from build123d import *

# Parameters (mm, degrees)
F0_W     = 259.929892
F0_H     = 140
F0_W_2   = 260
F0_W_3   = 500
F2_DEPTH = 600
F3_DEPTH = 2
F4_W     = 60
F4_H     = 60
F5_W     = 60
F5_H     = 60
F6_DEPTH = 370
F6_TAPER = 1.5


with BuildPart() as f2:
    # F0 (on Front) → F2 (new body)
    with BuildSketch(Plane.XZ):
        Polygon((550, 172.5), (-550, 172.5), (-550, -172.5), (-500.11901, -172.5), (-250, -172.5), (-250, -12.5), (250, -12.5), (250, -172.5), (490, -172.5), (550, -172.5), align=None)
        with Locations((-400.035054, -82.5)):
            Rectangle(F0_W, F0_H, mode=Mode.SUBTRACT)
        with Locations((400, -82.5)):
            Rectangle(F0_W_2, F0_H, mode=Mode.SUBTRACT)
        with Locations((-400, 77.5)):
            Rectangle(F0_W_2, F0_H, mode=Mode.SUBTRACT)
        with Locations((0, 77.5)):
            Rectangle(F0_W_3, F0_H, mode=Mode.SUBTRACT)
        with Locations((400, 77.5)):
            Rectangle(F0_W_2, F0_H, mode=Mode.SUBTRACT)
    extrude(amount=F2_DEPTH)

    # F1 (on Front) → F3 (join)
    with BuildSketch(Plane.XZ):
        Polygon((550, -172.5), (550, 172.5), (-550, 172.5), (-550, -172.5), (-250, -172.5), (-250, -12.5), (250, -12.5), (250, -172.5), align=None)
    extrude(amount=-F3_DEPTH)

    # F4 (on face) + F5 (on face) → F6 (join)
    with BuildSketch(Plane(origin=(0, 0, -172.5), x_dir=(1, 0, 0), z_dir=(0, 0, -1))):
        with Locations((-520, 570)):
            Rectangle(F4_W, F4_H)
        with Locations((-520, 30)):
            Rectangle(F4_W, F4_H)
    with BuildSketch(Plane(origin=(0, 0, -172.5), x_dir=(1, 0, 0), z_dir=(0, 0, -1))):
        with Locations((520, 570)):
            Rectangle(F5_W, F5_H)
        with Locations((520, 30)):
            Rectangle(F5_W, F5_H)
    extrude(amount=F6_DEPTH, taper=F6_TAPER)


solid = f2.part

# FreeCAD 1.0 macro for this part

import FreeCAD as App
import Part
import Sketcher
from FreeCAD import Vector

doc = App.newDocument("Part")
body = doc.addObject("PartDesign::Body", "Body")

sketch1 = doc.addObject("Sketcher::SketchObject", "Sketch")
body.addObject(sketch1)
sketch1.AttachmentSupport = (doc.XZ_Plane, [""])
sketch1.MapMode = "FlatFace"
sketch1.addGeometry(Part.LineSegment(Vector(550, 172, 0), Vector(-550, 172, 0)), False)
sketch1.addGeometry(Part.LineSegment(Vector(-550, 172, 0), Vector(-550, -172, 0)), False)
sketch1.addGeometry(Part.LineSegment(Vector(-550, -172, 0), Vector(-250, -172, 0)), False)
sketch1.addGeometry(Part.LineSegment(Vector(-250, -172, 0), Vector(-250, -12, 0)), False)
sketch1.addGeometry(Part.LineSegment(Vector(-250, -12, 0), Vector(250, -12, 0)), False)
sketch1.addGeometry(Part.LineSegment(Vector(250, -12, 0), Vector(250, -172, 0)), False)
sketch1.addGeometry(Part.LineSegment(Vector(250, -172, 0), Vector(550, -172, 0)), False)
sketch1.addGeometry(Part.LineSegment(Vector(550, -172, 0), Vector(550, 172, 0)), False)
sketch1.addGeometry(Part.LineSegment(Vector(-270, -152, 0), Vector(-530, -152, 0)), False)
sketch1.addGeometry(Part.LineSegment(Vector(-530, -152, 0), Vector(-530, -12, 0)), False)
sketch1.addGeometry(Part.LineSegment(Vector(-530, -12, 0), Vector(-270, -12, 0)), False)
sketch1.addGeometry(Part.LineSegment(Vector(-270, -12, 0), Vector(-270, -152, 0)), False)
sketch1.addGeometry(Part.LineSegment(Vector(530, -152, 0), Vector(270, -152, 0)), False)
sketch1.addGeometry(Part.LineSegment(Vector(270, -152, 0), Vector(270, -12, 0)), False)
sketch1.addGeometry(Part.LineSegment(Vector(270, -12, 0), Vector(530, -12, 0)), False)
sketch1.addGeometry(Part.LineSegment(Vector(530, -12, 0), Vector(530, -152, 0)), False)
sketch1.addGeometry(Part.LineSegment(Vector(-270, 8, 0), Vector(-530, 8, 0)), False)
sketch1.addGeometry(Part.LineSegment(Vector(-530, 8, 0), Vector(-530, 148, 0)), False)
sketch1.addGeometry(Part.LineSegment(Vector(-530, 148, 0), Vector(-270, 148, 0)), False)
sketch1.addGeometry(Part.LineSegment(Vector(-270, 148, 0), Vector(-270, 8, 0)), False)
sketch1.addGeometry(Part.LineSegment(Vector(250, 8, 0), Vector(-250, 8, 0)), False)
sketch1.addGeometry(Part.LineSegment(Vector(-250, 8, 0), Vector(-250, 148, 0)), False)
sketch1.addGeometry(Part.LineSegment(Vector(-250, 148, 0), Vector(250, 148, 0)), False)
sketch1.addGeometry(Part.LineSegment(Vector(250, 148, 0), Vector(250, 8, 0)), False)
sketch1.addGeometry(Part.LineSegment(Vector(530, 8, 0), Vector(270, 8, 0)), False)
sketch1.addGeometry(Part.LineSegment(Vector(270, 8, 0), Vector(270, 148, 0)), False)
sketch1.addGeometry(Part.LineSegment(Vector(270, 148, 0), Vector(530, 148, 0)), False)
sketch1.addGeometry(Part.LineSegment(Vector(530, 148, 0), Vector(530, 8, 0)), False)
sketch1.addConstraint(Sketcher.Constraint("Coincident", 0, 2, 1, 1))
sketch1.addConstraint(Sketcher.Constraint("Coincident", 1, 2, 2, 1))
sketch1.addConstraint(Sketcher.Constraint("Coincident", 2, 2, 3, 1))
sketch1.addConstraint(Sketcher.Constraint("Coincident", 3, 2, 4, 1))
sketch1.addConstraint(Sketcher.Constraint("Coincident", 4, 2, 5, 1))
sketch1.addConstraint(Sketcher.Constraint("Coincident", 5, 2, 6, 1))
sketch1.addConstraint(Sketcher.Constraint("Coincident", 6, 2, 7, 1))
sketch1.addConstraint(Sketcher.Constraint("Coincident", 7, 2, 0, 1))
sketch1.addConstraint(Sketcher.Constraint("Coincident", 8, 2, 9, 1))
sketch1.addConstraint(Sketcher.Constraint("Coincident", 9, 2, 10, 1))
sketch1.addConstraint(Sketcher.Constraint("Coincident", 10, 2, 11, 1))
sketch1.addConstraint(Sketcher.Constraint("Coincident", 11, 2, 8, 1))
sketch1.addConstraint(Sketcher.Constraint("Coincident", 12, 2, 13, 1))
sketch1.addConstraint(Sketcher.Constraint("Coincident", 13, 2, 14, 1))
sketch1.addConstraint(Sketcher.Constraint("Coincident", 14, 2, 15, 1))
sketch1.addConstraint(Sketcher.Constraint("Coincident", 15, 2, 12, 1))
sketch1.addConstraint(Sketcher.Constraint("Coincident", 16, 2, 17, 1))
sketch1.addConstraint(Sketcher.Constraint("Coincident", 17, 2, 18, 1))
sketch1.addConstraint(Sketcher.Constraint("Coincident", 18, 2, 19, 1))
sketch1.addConstraint(Sketcher.Constraint("Coincident", 19, 2, 16, 1))
sketch1.addConstraint(Sketcher.Constraint("Coincident", 20, 2, 21, 1))
sketch1.addConstraint(Sketcher.Constraint("Coincident", 21, 2, 22, 1))
sketch1.addConstraint(Sketcher.Constraint("Coincident", 22, 2, 23, 1))
sketch1.addConstraint(Sketcher.Constraint("Coincident", 23, 2, 20, 1))
sketch1.addConstraint(Sketcher.Constraint("Coincident", 24, 2, 25, 1))
sketch1.addConstraint(Sketcher.Constraint("Coincident", 25, 2, 26, 1))
sketch1.addConstraint(Sketcher.Constraint("Coincident", 26, 2, 27, 1))
sketch1.addConstraint(Sketcher.Constraint("Coincident", 27, 2, 24, 1))
sketch1.addConstraint(Sketcher.Constraint("Horizontal", 0))
sketch1.addConstraint(Sketcher.Constraint("Vertical", 1))
sketch1.addConstraint(Sketcher.Constraint("Horizontal", 2))
sketch1.addConstraint(Sketcher.Constraint("Vertical", 3))
sketch1.addConstraint(Sketcher.Constraint("Horizontal", 4))
sketch1.addConstraint(Sketcher.Constraint("Vertical", 5))
sketch1.addConstraint(Sketcher.Constraint("Horizontal", 6))
sketch1.addConstraint(Sketcher.Constraint("Vertical", 7))
sketch1.addConstraint(Sketcher.Constraint("Horizontal", 8))
sketch1.addConstraint(Sketcher.Constraint("Vertical", 9))
sketch1.addConstraint(Sketcher.Constraint("Horizontal", 10))
sketch1.addConstraint(Sketcher.Constraint("Vertical", 11))
sketch1.addConstraint(Sketcher.Constraint("Horizontal", 12))
sketch1.addConstraint(Sketcher.Constraint("Vertical", 13))
sketch1.addConstraint(Sketcher.Constraint("Horizontal", 14))
sketch1.addConstraint(Sketcher.Constraint("Vertical", 15))
sketch1.addConstraint(Sketcher.Constraint("Horizontal", 16))
sketch1.addConstraint(Sketcher.Constraint("Vertical", 17))
sketch1.addConstraint(Sketcher.Constraint("Horizontal", 18))
sketch1.addConstraint(Sketcher.Constraint("Vertical", 19))
sketch1.addConstraint(Sketcher.Constraint("Horizontal", 20))
sketch1.addConstraint(Sketcher.Constraint("Vertical", 21))
sketch1.addConstraint(Sketcher.Constraint("Horizontal", 22))
sketch1.addConstraint(Sketcher.Constraint("Vertical", 23))
sketch1.addConstraint(Sketcher.Constraint("Horizontal", 24))
sketch1.addConstraint(Sketcher.Constraint("Vertical", 25))
sketch1.addConstraint(Sketcher.Constraint("Horizontal", 26))
sketch1.addConstraint(Sketcher.Constraint("Vertical", 27))
sketch1.addConstraint(Sketcher.Constraint("Symmetric", 0, 2, 6, 2, -1, 1))
sketch1.addConstraint(Sketcher.Constraint("Symmetric", 2, 2, 5, 2, -2))
sketch1.addConstraint(Sketcher.Constraint("Symmetric", 9, 2, 14, 2, -2))
sketch1.addConstraint(Sketcher.Constraint("Symmetric", 19, 2, 24, 2, -2))
sketch1.addConstraint(Sketcher.Constraint("Symmetric", 17, 2, 26, 2, -2))
sketch1.addConstraint(Sketcher.Constraint("Horizontal", 4, 2, 9, 2))
sketch1.addConstraint(Sketcher.Constraint("Horizontal", 11, 2, 12, 2))
sketch1.addConstraint(Sketcher.Constraint("Horizontal", 19, 2, 20, 2))
sketch1.addConstraint(Sketcher.Constraint("Horizontal", 18, 2, 21, 2))
sketch1.addConstraint(Sketcher.Constraint("Vertical", 9, 2, 16, 2))
sketch1.addConstraint(Sketcher.Constraint("Vertical", 3, 2, 20, 2))
sketch1.addConstraint(Sketcher.Constraint("Vertical", 5, 2, 22, 2))
sketch1.addConstraint(Sketcher.Constraint("Vertical", 13, 2, 24, 2))
sketch1.addConstraint(Sketcher.Constraint("Equal", 15, 17))
sketch1.addConstraint(Sketcher.Constraint("DistanceX", 0, 2, 0, 1, 1100.0))
sketch1.addConstraint(Sketcher.Constraint("DistanceX", 2, 1, 2, 2, 300.0))
sketch1.addConstraint(Sketcher.Constraint("DistanceX", 12, 2, 12, 1, 260.0))
sketch1.addConstraint(Sketcher.Constraint("DistanceY", 1, 2, 1, 1, 345.0))
sketch1.addConstraint(Sketcher.Constraint("DistanceY", 3, 1, 3, 2, 160.0))
sketch1.addConstraint(Sketcher.Constraint("DistanceY", 9, 1, 9, 2, 140.0))
sketch1.addConstraint(Sketcher.Constraint("DistanceX", 8, 2, -1, 1, 530.0))
sketch1.addConstraint(Sketcher.Constraint("DistanceY", 9, 2, 16, 2, 20.0))
sketch1.addConstraint(Sketcher.Constraint("DistanceX", 8, 2, 8, 1, 259.929892))
pad1 = doc.addObject("PartDesign::Pad", "Pad")
body.addObject(pad1)
pad1.Profile = sketch1
pad1.Length = 600

sketch2 = doc.addObject("Sketcher::SketchObject", "Sketch001")
body.addObject(sketch2)
sketch2.AttachmentSupport = (doc.XZ_Plane, [""])
sketch2.MapMode = "FlatFace"
sketch2.addGeometry(Part.LineSegment(Vector(550, -172, 0), Vector(550, 172, 0)), False)
sketch2.addGeometry(Part.LineSegment(Vector(550, 172, 0), Vector(-550, 172, 0)), False)
sketch2.addGeometry(Part.LineSegment(Vector(-550, 172, 0), Vector(-550, -172, 0)), False)
sketch2.addGeometry(Part.LineSegment(Vector(-550, -172, 0), Vector(-250, -172, 0)), False)
sketch2.addGeometry(Part.LineSegment(Vector(-250, -172, 0), Vector(-250, -12, 0)), False)
sketch2.addGeometry(Part.LineSegment(Vector(-250, -12, 0), Vector(250, -12, 0)), False)
sketch2.addGeometry(Part.LineSegment(Vector(250, -12, 0), Vector(250, -172, 0)), False)
sketch2.addGeometry(Part.LineSegment(Vector(250, -172, 0), Vector(550, -172, 0)), False)
sketch2.addConstraint(Sketcher.Constraint("Coincident", 0, 2, 1, 1))
sketch2.addConstraint(Sketcher.Constraint("Coincident", 1, 2, 2, 1))
sketch2.addConstraint(Sketcher.Constraint("Coincident", 2, 2, 3, 1))
sketch2.addConstraint(Sketcher.Constraint("Coincident", 3, 2, 4, 1))
sketch2.addConstraint(Sketcher.Constraint("Coincident", 4, 2, 5, 1))
sketch2.addConstraint(Sketcher.Constraint("Coincident", 5, 2, 6, 1))
sketch2.addConstraint(Sketcher.Constraint("Coincident", 6, 2, 7, 1))
sketch2.addConstraint(Sketcher.Constraint("Coincident", 7, 2, 0, 1))
sketch2.addConstraint(Sketcher.Constraint("Vertical", 0))
sketch2.addConstraint(Sketcher.Constraint("Horizontal", 1))
sketch2.addConstraint(Sketcher.Constraint("Vertical", 2))
sketch2.addConstraint(Sketcher.Constraint("Horizontal", 3))
sketch2.addConstraint(Sketcher.Constraint("Vertical", 4))
sketch2.addConstraint(Sketcher.Constraint("Horizontal", 5))
sketch2.addConstraint(Sketcher.Constraint("Vertical", 6))
sketch2.addConstraint(Sketcher.Constraint("Horizontal", 7))
sketch2.addConstraint(Sketcher.Constraint("Symmetric", 0, 2, 2, 2, -1, 1))
sketch2.addConstraint(Sketcher.Constraint("Symmetric", 3, 2, 6, 2, -2))
sketch2.addConstraint(Sketcher.Constraint("DistanceX", 1, 2, 1, 1, 1100.0))
sketch2.addConstraint(Sketcher.Constraint("DistanceX", 3, 1, 3, 2, 300.0))
sketch2.addConstraint(Sketcher.Constraint("DistanceY", 0, 1, 0, 2, 345.0))
sketch2.addConstraint(Sketcher.Constraint("DistanceY", 4, 1, 4, 2, 160.0))
pad2 = doc.addObject("PartDesign::Pad", "Pad001")
body.addObject(pad2)
pad2.Profile = sketch2
pad2.Length = 2
pad2.Reversed = True

sketch3 = doc.addObject("Sketcher::SketchObject", "Sketch002")
body.addObject(sketch3)
sketch3.AttachmentSupport = (doc.XY_Plane, [""])
sketch3.MapMode = "FlatFace"
sketch3.AttachmentOffset = App.Placement(Vector(0, 0, -172.5), App.Rotation())
sketch3.addGeometry(Part.LineSegment(Vector(-550, -600, 0), Vector(-550, -540, 0)), False)
sketch3.addGeometry(Part.LineSegment(Vector(-550, -540, 0), Vector(-490, -540, 0)), False)
sketch3.addGeometry(Part.LineSegment(Vector(-490, -540, 0), Vector(-490, -600, 0)), False)
sketch3.addGeometry(Part.LineSegment(Vector(-490, -600, 0), Vector(-550, -600, 0)), False)
sketch3.addGeometry(Part.LineSegment(Vector(-550, -60, 0), Vector(-550, 0, 0)), False)
sketch3.addGeometry(Part.LineSegment(Vector(-550, 0, 0), Vector(-490, 0, 0)), False)
sketch3.addGeometry(Part.LineSegment(Vector(-490, 0, 0), Vector(-490, -60, 0)), False)
sketch3.addGeometry(Part.LineSegment(Vector(-490, -60, 0), Vector(-550, -60, 0)), False)
sketch3.addGeometry(Part.LineSegment(Vector(490, -600, 0), Vector(490, -540, 0)), False)
sketch3.addGeometry(Part.LineSegment(Vector(490, -540, 0), Vector(550, -540, 0)), False)
sketch3.addGeometry(Part.LineSegment(Vector(550, -540, 0), Vector(550, -600, 0)), False)
sketch3.addGeometry(Part.LineSegment(Vector(550, -600, 0), Vector(490, -600, 0)), False)
sketch3.addGeometry(Part.LineSegment(Vector(490, -60, 0), Vector(490, 0, 0)), False)
sketch3.addGeometry(Part.LineSegment(Vector(490, 0, 0), Vector(550, 0, 0)), False)
sketch3.addGeometry(Part.LineSegment(Vector(550, 0, 0), Vector(550, -60, 0)), False)
sketch3.addGeometry(Part.LineSegment(Vector(550, -60, 0), Vector(490, -60, 0)), False)
sketch3.addConstraint(Sketcher.Constraint("Coincident", 0, 2, 1, 1))
sketch3.addConstraint(Sketcher.Constraint("Coincident", 1, 2, 2, 1))
sketch3.addConstraint(Sketcher.Constraint("Coincident", 2, 2, 3, 1))
sketch3.addConstraint(Sketcher.Constraint("Coincident", 3, 2, 0, 1))
sketch3.addConstraint(Sketcher.Constraint("Coincident", 4, 2, 5, 1))
sketch3.addConstraint(Sketcher.Constraint("Coincident", 5, 2, 6, 1))
sketch3.addConstraint(Sketcher.Constraint("Coincident", 6, 2, 7, 1))
sketch3.addConstraint(Sketcher.Constraint("Coincident", 7, 2, 4, 1))
sketch3.addConstraint(Sketcher.Constraint("Coincident", 8, 2, 9, 1))
sketch3.addConstraint(Sketcher.Constraint("Coincident", 9, 2, 10, 1))
sketch3.addConstraint(Sketcher.Constraint("Coincident", 10, 2, 11, 1))
sketch3.addConstraint(Sketcher.Constraint("Coincident", 11, 2, 8, 1))
sketch3.addConstraint(Sketcher.Constraint("Coincident", 12, 2, 13, 1))
sketch3.addConstraint(Sketcher.Constraint("Coincident", 13, 2, 14, 1))
sketch3.addConstraint(Sketcher.Constraint("Coincident", 14, 2, 15, 1))
sketch3.addConstraint(Sketcher.Constraint("Coincident", 15, 2, 12, 1))
sketch3.addConstraint(Sketcher.Constraint("Vertical", 0))
sketch3.addConstraint(Sketcher.Constraint("Horizontal", 1))
sketch3.addConstraint(Sketcher.Constraint("Vertical", 2))
sketch3.addConstraint(Sketcher.Constraint("Horizontal", 3))
sketch3.addConstraint(Sketcher.Constraint("Vertical", 4))
sketch3.addConstraint(Sketcher.Constraint("Horizontal", 5))
sketch3.addConstraint(Sketcher.Constraint("Vertical", 6))
sketch3.addConstraint(Sketcher.Constraint("Horizontal", 7))
sketch3.addConstraint(Sketcher.Constraint("Vertical", 8))
sketch3.addConstraint(Sketcher.Constraint("Horizontal", 9))
sketch3.addConstraint(Sketcher.Constraint("Vertical", 10))
sketch3.addConstraint(Sketcher.Constraint("Horizontal", 11))
sketch3.addConstraint(Sketcher.Constraint("Vertical", 12))
sketch3.addConstraint(Sketcher.Constraint("Horizontal", 13))
sketch3.addConstraint(Sketcher.Constraint("Vertical", 14))
sketch3.addConstraint(Sketcher.Constraint("Horizontal", 15))
sketch3.addConstraint(Sketcher.Constraint("Symmetric", 5, 2, 12, 2, -1, 1))
sketch3.addConstraint(Sketcher.Constraint("Symmetric", 1, 2, 8, 2, -2))
sketch3.addConstraint(Sketcher.Constraint("Symmetric", 3, 2, 10, 2, -2))
sketch3.addConstraint(Sketcher.Constraint("Symmetric", 4, 2, 13, 2, -2))
sketch3.addConstraint(Sketcher.Constraint("Horizontal", 7, 2, 14, 2))
sketch3.addConstraint(Sketcher.Constraint("Vertical", 3, 2, 4, 2))
sketch3.addConstraint(Sketcher.Constraint("Vertical", 2, 2, 5, 2))
sketch3.addConstraint(Sketcher.Constraint("Equal", 15, 0))
sketch3.addConstraint(Sketcher.Constraint("Equal", 2, 4))
sketch3.addConstraint(Sketcher.Constraint("DistanceX", 1, 1, 1, 2, 60.0))
sketch3.addConstraint(Sketcher.Constraint("DistanceX", 0, 2, -1, 1, 550.0))
sketch3.addConstraint(Sketcher.Constraint("DistanceY", 0, 2, -1, 1, 540.0))
pad3 = doc.addObject("PartDesign::Pad", "Pad002")
body.addObject(pad3)
pad3.Profile = sketch3
pad3.Length = 370
pad3.Reversed = True
pad3.TaperAngle = -1.5

doc.recompute()
